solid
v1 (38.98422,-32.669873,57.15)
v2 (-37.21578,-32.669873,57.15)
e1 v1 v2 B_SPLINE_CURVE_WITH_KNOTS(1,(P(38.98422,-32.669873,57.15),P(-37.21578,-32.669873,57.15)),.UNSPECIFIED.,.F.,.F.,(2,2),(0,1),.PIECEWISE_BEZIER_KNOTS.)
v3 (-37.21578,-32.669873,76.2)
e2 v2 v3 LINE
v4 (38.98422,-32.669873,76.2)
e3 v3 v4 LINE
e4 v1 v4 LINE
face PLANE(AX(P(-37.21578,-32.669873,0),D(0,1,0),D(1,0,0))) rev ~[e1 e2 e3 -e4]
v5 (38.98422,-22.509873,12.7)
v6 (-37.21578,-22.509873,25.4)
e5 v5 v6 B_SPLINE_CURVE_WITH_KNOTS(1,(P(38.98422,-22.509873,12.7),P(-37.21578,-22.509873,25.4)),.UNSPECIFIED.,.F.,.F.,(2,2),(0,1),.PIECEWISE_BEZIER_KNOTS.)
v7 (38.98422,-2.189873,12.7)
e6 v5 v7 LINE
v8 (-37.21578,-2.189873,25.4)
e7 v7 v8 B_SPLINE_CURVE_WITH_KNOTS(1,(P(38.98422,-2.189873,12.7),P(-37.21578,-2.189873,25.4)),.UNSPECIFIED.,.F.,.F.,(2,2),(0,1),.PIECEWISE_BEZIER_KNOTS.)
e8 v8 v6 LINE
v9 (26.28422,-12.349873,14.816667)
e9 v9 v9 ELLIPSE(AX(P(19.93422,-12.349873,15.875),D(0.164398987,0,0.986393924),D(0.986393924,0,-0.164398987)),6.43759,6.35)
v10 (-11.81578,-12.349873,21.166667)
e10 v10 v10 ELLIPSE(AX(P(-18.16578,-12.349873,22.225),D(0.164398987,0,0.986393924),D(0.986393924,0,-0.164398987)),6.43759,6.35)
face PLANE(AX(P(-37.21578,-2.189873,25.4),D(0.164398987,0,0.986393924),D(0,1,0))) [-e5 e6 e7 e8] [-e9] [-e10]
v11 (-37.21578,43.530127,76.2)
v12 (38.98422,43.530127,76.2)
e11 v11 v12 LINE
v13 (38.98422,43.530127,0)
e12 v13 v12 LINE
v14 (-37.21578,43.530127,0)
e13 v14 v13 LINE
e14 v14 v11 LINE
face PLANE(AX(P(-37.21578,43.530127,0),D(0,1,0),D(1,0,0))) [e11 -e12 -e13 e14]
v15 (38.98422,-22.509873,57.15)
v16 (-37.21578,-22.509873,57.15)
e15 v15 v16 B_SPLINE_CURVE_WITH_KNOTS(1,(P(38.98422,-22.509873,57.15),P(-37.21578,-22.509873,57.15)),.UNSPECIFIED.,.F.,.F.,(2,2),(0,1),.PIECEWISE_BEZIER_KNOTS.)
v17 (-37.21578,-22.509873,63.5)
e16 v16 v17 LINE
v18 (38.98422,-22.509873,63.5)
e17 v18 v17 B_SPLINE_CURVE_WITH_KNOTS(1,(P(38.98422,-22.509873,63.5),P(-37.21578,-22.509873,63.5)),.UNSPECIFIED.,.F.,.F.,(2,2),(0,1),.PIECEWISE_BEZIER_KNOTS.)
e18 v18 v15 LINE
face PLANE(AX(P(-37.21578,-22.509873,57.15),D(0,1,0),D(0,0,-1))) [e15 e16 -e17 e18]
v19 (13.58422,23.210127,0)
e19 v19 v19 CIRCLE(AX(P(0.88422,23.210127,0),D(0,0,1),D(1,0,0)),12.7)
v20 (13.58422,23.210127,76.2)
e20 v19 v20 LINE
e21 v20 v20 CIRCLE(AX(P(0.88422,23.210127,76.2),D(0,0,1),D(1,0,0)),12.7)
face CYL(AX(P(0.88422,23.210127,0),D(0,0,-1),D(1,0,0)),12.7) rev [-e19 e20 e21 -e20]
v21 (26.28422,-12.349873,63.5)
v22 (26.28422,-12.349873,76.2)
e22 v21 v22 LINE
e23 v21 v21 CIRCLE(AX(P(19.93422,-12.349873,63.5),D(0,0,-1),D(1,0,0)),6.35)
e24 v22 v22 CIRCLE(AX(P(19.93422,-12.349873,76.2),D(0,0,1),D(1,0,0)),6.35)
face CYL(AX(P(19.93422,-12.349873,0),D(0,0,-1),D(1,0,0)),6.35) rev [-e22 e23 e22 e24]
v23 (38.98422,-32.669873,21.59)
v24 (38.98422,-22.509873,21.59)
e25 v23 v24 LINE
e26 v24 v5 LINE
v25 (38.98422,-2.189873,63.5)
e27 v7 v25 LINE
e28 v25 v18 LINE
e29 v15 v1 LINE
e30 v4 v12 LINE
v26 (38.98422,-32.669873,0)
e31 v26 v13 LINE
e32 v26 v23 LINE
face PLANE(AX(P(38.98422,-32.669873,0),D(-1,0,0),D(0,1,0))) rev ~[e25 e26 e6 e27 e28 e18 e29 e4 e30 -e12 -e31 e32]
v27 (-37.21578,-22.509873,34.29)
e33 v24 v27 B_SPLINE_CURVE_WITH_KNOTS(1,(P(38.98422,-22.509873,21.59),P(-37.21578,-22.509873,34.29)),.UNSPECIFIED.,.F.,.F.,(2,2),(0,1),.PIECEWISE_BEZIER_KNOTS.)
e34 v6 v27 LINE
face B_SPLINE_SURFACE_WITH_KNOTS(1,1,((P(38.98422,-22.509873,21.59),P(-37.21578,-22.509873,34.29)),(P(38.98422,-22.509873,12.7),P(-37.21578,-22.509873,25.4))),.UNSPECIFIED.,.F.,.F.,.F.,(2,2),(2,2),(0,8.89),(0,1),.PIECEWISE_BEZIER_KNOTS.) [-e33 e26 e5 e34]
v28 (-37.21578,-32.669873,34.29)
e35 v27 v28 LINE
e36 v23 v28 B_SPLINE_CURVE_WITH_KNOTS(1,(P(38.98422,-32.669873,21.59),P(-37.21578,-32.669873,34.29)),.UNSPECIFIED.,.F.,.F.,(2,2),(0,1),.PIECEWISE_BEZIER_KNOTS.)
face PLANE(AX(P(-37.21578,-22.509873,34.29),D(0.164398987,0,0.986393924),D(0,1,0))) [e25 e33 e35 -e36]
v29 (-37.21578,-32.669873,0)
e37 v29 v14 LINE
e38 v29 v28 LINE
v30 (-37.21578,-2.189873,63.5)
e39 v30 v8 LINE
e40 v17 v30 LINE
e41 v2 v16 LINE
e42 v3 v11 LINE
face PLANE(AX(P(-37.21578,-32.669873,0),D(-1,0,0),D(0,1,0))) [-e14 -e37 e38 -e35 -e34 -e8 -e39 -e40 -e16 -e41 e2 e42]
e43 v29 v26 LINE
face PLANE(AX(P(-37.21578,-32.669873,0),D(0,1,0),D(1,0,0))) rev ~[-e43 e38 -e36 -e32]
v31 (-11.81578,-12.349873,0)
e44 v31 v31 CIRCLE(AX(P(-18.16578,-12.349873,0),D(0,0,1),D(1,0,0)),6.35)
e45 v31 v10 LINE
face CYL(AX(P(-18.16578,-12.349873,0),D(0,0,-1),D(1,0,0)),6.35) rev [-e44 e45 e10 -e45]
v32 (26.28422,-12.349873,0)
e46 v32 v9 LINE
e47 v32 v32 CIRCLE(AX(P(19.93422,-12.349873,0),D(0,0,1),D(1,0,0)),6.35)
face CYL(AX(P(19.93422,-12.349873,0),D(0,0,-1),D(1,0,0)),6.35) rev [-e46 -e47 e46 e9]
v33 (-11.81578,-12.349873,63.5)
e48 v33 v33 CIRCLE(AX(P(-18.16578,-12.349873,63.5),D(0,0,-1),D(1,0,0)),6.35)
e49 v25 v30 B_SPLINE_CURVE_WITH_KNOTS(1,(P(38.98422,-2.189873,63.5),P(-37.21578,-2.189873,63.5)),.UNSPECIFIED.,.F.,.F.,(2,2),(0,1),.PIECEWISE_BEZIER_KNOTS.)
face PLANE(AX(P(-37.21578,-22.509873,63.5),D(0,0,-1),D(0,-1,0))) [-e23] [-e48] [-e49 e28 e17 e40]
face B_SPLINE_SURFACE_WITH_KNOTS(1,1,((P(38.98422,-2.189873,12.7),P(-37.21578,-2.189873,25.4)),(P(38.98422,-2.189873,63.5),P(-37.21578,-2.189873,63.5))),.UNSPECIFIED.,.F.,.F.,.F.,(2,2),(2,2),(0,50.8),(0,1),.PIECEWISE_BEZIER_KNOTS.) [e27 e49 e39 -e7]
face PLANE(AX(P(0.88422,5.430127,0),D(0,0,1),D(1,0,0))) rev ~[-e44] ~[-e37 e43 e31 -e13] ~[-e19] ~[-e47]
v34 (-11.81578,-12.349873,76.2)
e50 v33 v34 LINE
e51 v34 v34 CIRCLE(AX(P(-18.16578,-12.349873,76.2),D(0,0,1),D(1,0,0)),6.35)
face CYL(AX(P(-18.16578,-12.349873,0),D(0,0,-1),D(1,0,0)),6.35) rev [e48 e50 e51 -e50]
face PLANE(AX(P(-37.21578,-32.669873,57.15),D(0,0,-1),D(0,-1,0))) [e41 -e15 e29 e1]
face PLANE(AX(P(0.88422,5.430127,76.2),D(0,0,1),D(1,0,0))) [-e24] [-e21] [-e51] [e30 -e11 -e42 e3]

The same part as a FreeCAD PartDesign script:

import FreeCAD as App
import Part
import Sketcher
from FreeCAD import Vector
Q = App.Units.Quantity


def add_polygon(sketch, points):
    """Adds a closed chain of lines whose ends are joined by coincident constraints."""
    first, n = sketch.GeometryCount, len(points)
    for a, b in zip(points, points[1:] + points[:1]):
        sketch.addGeometry(Part.LineSegment(App.Vector(*a, 0), App.Vector(*b, 0)), False)
    for i in range(n):
        sketch.addConstraint(Sketcher.Constraint("Coincident", first + i, 2, first + (i + 1) % n, 1))

doc = App.newDocument("Part")
body = doc.addObject("PartDesign::Body", "Body")

sketch1 = body.newObject("Sketcher::SketchObject", "Sketch")
sketch1.AttachmentSupport = (doc.getObject("XY_Plane"), [""])
sketch1.MapMode = "FlatFace"
add_polygon(sketch1, [(-37, 44), (-37, -33), (39, -33), (39, 44)])
sketch1.addGeometry(Part.Circle(Vector(-18, -12, 0), Vector(0, 0, 1), 6), False)
sketch1.addGeometry(Part.Circle(Vector(20, -12, 0), Vector(0, 0, 1), 6), False)
sketch1.addGeometry(Part.Circle(Vector(1, 23, 0), Vector(0, 0, 1), 13), False)
sketch1.addConstraint(Sketcher.Constraint("Vertical", 0))
sketch1.addConstraint(Sketcher.Constraint("Horizontal", 1))
sketch1.addConstraint(Sketcher.Constraint("Vertical", 2))
sketch1.addConstraint(Sketcher.Constraint("Horizontal", 3))
sketch1.addConstraint(Sketcher.Constraint("Equal", 4, 5))
sketch1.addConstraint(Sketcher.Constraint("Horizontal", 4, 3, 5, 3))
sketch1.addConstraint(Sketcher.Constraint("Equal", 3, 0))
sketch1.addConstraint(Sketcher.Constraint("Diameter", 6, Q("1 in")))
sketch1.addConstraint(Sketcher.Constraint("Diameter", 4, Q("0.5 in")))
sketch1.addConstraint(Sketcher.Constraint("DistanceX", 1, 1, 1, 2, Q("3 in")))
sketch1.addConstraint(Sketcher.Constraint("DistanceX", 4, 3, 5, 3, Q("1.5 in")))
sketch1.addConstraint(Sketcher.Constraint("DistanceY", 4, 3, 6, 3, Q("1.4 in")))
sketch1.addConstraint(Sketcher.Constraint("DistanceY", 0, 2, 4, 3, Q("0.8 in")))
sketch1.addConstraint(Sketcher.Constraint("DistanceX", 0, 2, 6, 3, Q("1.5 in")))
sketch1.addConstraint(Sketcher.Constraint("DistanceX", 4, 3, 6, 3, Q("0.75 in")))
sketch1.addConstraint(Sketcher.Constraint("DistanceX", 4, 3, -1, 1, Q("18.16578 mm")))
sketch1.addConstraint(Sketcher.Constraint("DistanceY", 4, 3, -1, 1, Q("12.349873 mm")))
pad1 = body.newObject("PartDesign::Pad", "Pad")
pad1.Profile = sketch1
pad1.Length = Q("3 in")

sketch2 = body.newObject("Sketcher::SketchObject", "Sketch001")
sketch2.AttachmentSupport = (doc.getObject("YZ_Plane"), [""])
sketch2.MapMode = "FlatFace"
sketch2.AttachmentOffset = App.Placement(Vector(0, 0, 38.98422), App.Rotation())
add_polygon(sketch2, [(-23, 57), (-33, 57), (-33, 22), (-23, 22), (-23, 13), (-2, 13), (-2, 64), (-23, 64)])
sketch2.addConstraint(Sketcher.Constraint("Horizontal", 0))
sketch2.addConstraint(Sketcher.Constraint("Vertical", 1))
sketch2.addConstraint(Sketcher.Constraint("Horizontal", 2))
sketch2.addConstraint(Sketcher.Constraint("Vertical", 3))
sketch2.addConstraint(Sketcher.Constraint("Horizontal", 4))
sketch2.addConstraint(Sketcher.Constraint("Vertical", 5))
sketch2.addConstraint(Sketcher.Constraint("Horizontal", 6))
sketch2.addConstraint(Sketcher.Constraint("Vertical", 7))
sketch2.addConstraint(Sketcher.Constraint("Vertical", 3, 2, 6, 2))
sketch2.addConstraint(Sketcher.Constraint("DistanceY", 5, 1, 5, 2, Q("2 in")))
sketch2.addConstraint(Sketcher.Constraint("DistanceX", 0, 2, 0, 1, Q("0.4 in")))
sketch2.addConstraint(Sketcher.Constraint("DistanceX", 4, 1, 4, 2, Q("0.8 in")))
sketch2.addConstraint(Sketcher.Constraint("DistanceY", 1, 2, 1, 1, Q("1.4 in")))
sketch2.addConstraint(Sketcher.Constraint("DistanceY", 3, 2, 3, 1, Q("0.35 in")))
sketch2.addConstraint(Sketcher.Constraint("DistanceY", -1, 1, 3, 2, Q("0.5 in")))
sketch2.addConstraint(Sketcher.Constraint("DistanceX", 0, 2, -1, 1, Q("32.669873 mm")))

sketch3 = body.newObject("Sketcher::SketchObject", "Sketch002")
sketch3.AttachmentSupport = (doc.getObject("YZ_Plane"), [""])
sketch3.MapMode = "FlatFace"
sketch3.AttachmentOffset = App.Placement(Vector(0, 0, -37.21578), App.Rotation())
add_polygon(sketch3, [(-23, 34), (-33, 34), (-33, 57), (-23, 57), (-23, 64), (-2, 64), (-2, 25), (-23, 25)])
sketch3.addConstraint(Sketcher.Constraint("Horizontal", 0))
sketch3.addConstraint(Sketcher.Constraint("Vertical", 1))
sketch3.addConstraint(Sketcher.Constraint("Horizontal", 2))
sketch3.addConstraint(Sketcher.Constraint("Vertical", 3))
sketch3.addConstraint(Sketcher.Constraint("Horizontal", 4))
sketch3.addConstraint(Sketcher.Constraint("Vertical", 5))
sketch3.addConstraint(Sketcher.Constraint("Horizontal", 6))
sketch3.addConstraint(Sketcher.Constraint("Vertical", 7))
sketch3.addConstraint(Sketcher.Constraint("Vertical", 3, 2, 6, 2))
sketch3.addConstraint(Sketcher.Constraint("DistanceX", 0, 2, 0, 1, Q("0.4 in")))
sketch3.addConstraint(Sketcher.Constraint("DistanceX", 4, 1, 4, 2, Q("0.8 in")))
sketch3.addConstraint(Sketcher.Constraint("DistanceY", 1, 1, 1, 2, Q("0.9 in")))
sketch3.addConstraint(Sketcher.Constraint("DistanceY", 5, 2, 5, 1, Q("1.5 in")))
sketch3.addConstraint(Sketcher.Constraint("DistanceY", -1, 1, 5, 2, Q("1 in")))
sketch3.addConstraint(Sketcher.Constraint("DistanceY", 3, 1, 3, 2, Q("0.25 in")))
sketch3.addConstraint(Sketcher.Constraint("DistanceX", 0, 2, -1, 1, Q("32.669873 mm")))

subtractiveloft = body.newObject("PartDesign::SubtractiveLoft", "SubtractiveLoft")
subtractiveloft.Profile = sketch2
subtractiveloft.Sections = [sketch3]

doc.recompute()
